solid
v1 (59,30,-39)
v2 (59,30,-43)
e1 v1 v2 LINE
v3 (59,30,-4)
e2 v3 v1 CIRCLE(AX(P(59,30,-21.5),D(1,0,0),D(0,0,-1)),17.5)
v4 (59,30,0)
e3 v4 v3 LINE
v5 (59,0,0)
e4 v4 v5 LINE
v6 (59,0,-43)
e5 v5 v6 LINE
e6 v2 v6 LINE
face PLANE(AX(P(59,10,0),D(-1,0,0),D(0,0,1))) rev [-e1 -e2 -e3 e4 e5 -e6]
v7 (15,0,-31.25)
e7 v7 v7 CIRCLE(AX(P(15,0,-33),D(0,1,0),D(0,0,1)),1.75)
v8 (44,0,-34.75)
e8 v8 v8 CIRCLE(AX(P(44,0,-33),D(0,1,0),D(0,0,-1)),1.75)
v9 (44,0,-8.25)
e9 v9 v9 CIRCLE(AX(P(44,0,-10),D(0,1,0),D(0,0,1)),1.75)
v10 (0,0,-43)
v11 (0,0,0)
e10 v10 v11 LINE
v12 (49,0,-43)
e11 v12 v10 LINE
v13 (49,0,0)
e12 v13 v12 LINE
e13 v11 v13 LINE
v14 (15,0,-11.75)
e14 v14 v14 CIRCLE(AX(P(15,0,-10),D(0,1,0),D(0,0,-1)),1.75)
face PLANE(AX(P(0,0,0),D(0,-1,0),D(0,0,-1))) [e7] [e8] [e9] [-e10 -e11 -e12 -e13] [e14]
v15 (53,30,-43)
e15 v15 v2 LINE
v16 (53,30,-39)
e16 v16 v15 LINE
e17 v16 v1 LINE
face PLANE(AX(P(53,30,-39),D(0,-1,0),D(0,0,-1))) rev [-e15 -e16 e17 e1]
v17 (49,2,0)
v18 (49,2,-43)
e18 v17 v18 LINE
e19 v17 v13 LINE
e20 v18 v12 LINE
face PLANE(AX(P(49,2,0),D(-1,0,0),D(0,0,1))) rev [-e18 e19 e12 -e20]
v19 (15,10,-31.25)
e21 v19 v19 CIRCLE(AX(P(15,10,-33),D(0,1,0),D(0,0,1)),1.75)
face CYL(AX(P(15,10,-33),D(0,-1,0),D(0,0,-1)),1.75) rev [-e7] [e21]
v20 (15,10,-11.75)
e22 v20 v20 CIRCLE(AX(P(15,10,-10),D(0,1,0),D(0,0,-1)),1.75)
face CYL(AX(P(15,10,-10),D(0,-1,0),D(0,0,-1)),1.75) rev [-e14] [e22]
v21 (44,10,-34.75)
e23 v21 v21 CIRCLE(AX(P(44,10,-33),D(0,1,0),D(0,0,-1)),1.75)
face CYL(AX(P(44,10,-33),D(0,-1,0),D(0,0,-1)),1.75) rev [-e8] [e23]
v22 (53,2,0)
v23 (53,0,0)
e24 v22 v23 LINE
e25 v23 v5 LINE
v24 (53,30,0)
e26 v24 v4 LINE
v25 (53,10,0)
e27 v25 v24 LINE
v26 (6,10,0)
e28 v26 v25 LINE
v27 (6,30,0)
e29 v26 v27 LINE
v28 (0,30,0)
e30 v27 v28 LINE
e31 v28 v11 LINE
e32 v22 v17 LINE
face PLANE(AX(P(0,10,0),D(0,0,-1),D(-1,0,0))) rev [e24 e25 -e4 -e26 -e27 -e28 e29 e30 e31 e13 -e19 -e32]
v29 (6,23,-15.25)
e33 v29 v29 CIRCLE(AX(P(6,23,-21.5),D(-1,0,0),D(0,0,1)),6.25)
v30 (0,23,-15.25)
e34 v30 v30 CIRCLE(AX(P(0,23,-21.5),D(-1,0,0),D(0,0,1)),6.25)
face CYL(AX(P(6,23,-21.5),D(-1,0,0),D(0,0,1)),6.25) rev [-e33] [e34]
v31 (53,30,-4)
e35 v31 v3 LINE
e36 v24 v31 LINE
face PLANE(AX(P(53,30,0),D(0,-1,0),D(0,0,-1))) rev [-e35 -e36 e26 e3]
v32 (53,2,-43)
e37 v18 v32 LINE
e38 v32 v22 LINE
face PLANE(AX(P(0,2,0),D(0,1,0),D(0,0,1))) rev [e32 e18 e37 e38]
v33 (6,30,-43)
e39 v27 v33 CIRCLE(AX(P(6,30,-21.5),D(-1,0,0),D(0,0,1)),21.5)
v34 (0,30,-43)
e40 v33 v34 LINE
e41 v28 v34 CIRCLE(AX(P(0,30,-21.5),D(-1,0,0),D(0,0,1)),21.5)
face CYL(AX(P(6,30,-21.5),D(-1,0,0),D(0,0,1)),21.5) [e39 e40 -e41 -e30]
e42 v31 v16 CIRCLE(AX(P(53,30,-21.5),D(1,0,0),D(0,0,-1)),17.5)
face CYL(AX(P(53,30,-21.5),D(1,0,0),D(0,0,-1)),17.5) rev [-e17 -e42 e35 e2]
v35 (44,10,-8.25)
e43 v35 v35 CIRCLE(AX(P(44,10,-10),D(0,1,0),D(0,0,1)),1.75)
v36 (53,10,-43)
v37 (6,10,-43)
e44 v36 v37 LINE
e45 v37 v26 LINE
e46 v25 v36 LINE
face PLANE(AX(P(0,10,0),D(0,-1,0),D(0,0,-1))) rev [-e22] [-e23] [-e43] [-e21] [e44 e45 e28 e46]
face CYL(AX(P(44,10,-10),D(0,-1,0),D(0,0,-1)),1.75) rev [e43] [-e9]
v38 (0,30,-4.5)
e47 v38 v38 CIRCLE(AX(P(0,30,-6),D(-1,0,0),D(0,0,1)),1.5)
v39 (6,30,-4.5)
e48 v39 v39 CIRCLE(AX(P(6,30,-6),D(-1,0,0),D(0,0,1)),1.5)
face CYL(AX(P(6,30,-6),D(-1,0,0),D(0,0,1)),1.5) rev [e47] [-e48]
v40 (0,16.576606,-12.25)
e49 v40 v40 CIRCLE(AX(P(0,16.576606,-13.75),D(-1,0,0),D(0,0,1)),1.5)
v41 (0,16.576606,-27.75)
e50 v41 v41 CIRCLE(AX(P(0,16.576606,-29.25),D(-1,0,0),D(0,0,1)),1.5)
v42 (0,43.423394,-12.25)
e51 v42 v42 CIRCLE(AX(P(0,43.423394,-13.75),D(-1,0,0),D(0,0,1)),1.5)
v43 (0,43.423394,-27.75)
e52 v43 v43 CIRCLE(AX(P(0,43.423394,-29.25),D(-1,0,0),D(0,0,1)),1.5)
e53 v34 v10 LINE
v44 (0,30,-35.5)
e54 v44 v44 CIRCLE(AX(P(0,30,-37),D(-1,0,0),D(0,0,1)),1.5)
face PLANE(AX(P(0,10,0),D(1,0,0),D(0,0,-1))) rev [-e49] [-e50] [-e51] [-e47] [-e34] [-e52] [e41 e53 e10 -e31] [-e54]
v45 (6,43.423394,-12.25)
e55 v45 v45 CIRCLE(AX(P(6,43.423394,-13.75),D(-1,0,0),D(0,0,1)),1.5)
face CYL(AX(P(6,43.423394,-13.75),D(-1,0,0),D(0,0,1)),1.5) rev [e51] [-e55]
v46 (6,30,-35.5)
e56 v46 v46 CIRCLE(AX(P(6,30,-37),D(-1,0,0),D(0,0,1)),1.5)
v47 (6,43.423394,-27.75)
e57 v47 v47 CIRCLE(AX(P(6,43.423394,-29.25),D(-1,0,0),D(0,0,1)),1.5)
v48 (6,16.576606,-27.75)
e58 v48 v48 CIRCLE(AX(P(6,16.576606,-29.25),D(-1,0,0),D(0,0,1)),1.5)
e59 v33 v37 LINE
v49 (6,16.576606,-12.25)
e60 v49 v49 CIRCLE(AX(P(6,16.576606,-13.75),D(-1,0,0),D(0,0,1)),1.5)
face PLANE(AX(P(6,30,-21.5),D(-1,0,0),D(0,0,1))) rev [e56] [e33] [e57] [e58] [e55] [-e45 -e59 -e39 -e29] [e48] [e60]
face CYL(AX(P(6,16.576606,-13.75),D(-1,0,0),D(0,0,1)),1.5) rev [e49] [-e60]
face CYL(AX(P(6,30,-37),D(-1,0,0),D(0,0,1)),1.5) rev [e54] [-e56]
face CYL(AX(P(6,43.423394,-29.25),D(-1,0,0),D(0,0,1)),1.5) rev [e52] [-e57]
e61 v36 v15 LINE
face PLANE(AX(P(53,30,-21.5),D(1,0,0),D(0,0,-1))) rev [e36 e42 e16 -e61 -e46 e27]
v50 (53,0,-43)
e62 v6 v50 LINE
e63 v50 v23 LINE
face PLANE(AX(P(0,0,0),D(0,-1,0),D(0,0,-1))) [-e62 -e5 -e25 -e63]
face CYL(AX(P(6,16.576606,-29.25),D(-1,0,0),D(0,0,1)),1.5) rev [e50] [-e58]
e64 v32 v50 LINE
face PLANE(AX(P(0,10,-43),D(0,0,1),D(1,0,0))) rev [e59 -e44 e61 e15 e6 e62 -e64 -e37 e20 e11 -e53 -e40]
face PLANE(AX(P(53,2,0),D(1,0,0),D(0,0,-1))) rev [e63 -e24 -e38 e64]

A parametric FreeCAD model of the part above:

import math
import FreeCAD as App
import Part
import Sketcher
Q = App.Units.Quantity

doc = App.newDocument("Part")
body = doc.addObject("PartDesign::Body", "Body")

# Sketch on XZ plane
sketch1 = body.newObject("Sketcher::SketchObject", "Sketch")
sketch1.AttachmentSupport = (doc.getObject("XZ_Plane"), [""])
sketch1.MapMode = "FlatFace"
sketch1.addGeometry([
    Part.LineSegment(App.Vector(0, -43, 0), App.Vector(0, 0, 0)),  # 0
    Part.LineSegment(App.Vector(0, 0, 0), App.Vector(59, 0, 0)),  # 1
    Part.LineSegment(App.Vector(59, 0, 0), App.Vector(59, -43, 0)),  # 2
    Part.LineSegment(App.Vector(59, -43, 0), App.Vector(0, -43, 0)),  # 3
    Part.Circle(App.Vector(15, -10, 0), App.Vector(0, 0, 1), 1.8),  # 4
    Part.Circle(App.Vector(44, -10, 0), App.Vector(0, 0, 1), 1.8),  # 5
    Part.Circle(App.Vector(15, -33, 0), App.Vector(0, 0, 1), 1.8),  # 6
    Part.Circle(App.Vector(44, -33, 0), App.Vector(0, 0, 1), 1.8),  # 7
], False)
sketch1.addConstraint([
    Sketcher.Constraint("Coincident", 0, 2, 1, 1),
    Sketcher.Constraint("Coincident", 1, 2, 2, 1),
    Sketcher.Constraint("Coincident", 2, 2, 3, 1),
    Sketcher.Constraint("Coincident", 3, 2, 0, 1),
    Sketcher.Constraint("Vertical", 0),
    Sketcher.Constraint("Horizontal", 1),
    Sketcher.Constraint("Vertical", 2),
    Sketcher.Constraint("Horizontal", 3),
    Sketcher.Constraint("Coincident", 0, 2, -1, 1),
    Sketcher.Constraint("Equal", 4, 5),
    Sketcher.Constraint("Equal", 5, 6),
    Sketcher.Constraint("Equal", 6, 7),
    Sketcher.Constraint("Horizontal", 4, 3, 5, 3),
    Sketcher.Constraint("Horizontal", 6, 3, 7, 3),
    Sketcher.Constraint("Vertical", 4, 3, 6, 3),
    Sketcher.Constraint("Vertical", 5, 3, 7, 3),
    Sketcher.Constraint("Diameter", 4, Q("3.5 mm")),
    Sketcher.Constraint("DistanceX", 1, 1, 1, 2, Q("59 mm")),
    Sketcher.Constraint("DistanceY", 0, 1, 0, 2, Q("43 mm")),
    Sketcher.Constraint("DistanceX", -1, 1, 4, 3, Q("15 mm")),
    Sketcher.Constraint("DistanceY", 4, 3, -1, 1, Q("10 mm")),
    Sketcher.Constraint("DistanceX", -1, 1, 5, 3, Q("44 mm")),
    Sketcher.Constraint("DistanceY", 6, 3, -1, 1, Q("33 mm")),
])
pad1 = body.newObject("PartDesign::Pad", "Pad")
pad1.Profile = sketch1
pad1.Length = 10
pad1.Reversed = True

# Sketch on XZ plane
sketch2 = body.newObject("Sketcher::SketchObject", "Sketch001")
sketch2.AttachmentSupport = (doc.getObject("XZ_Plane"), [""])
sketch2.MapMode = "FlatFace"
sketch2.addGeometry([
    Part.LineSegment(App.Vector(49, 0, 0), App.Vector(49, -43, 0)),
    Part.LineSegment(App.Vector(49, -43, 0), App.Vector(53, -43, 0)),
    Part.LineSegment(App.Vector(53, -43, 0), App.Vector(53, 0, 0)),
    Part.LineSegment(App.Vector(53, 0, 0), App.Vector(49, 0, 0)),
], False)
sketch2.addConstraint([
    Sketcher.Constraint("Coincident", 0, 2, 1, 1),
    Sketcher.Constraint("Coincident", 1, 2, 2, 1),
    Sketcher.Constraint("Coincident", 2, 2, 3, 1),
    Sketcher.Constraint("Coincident", 3, 2, 0, 1),
    Sketcher.Constraint("Vertical", 0),
    Sketcher.Constraint("Horizontal", 1),
    Sketcher.Constraint("Vertical", 2),
    Sketcher.Constraint("Horizontal", 3),
    Sketcher.Constraint("PointOnObject", 2, 2, -1),
    Sketcher.Constraint("DistanceX", 1, 1, 1, 2, Q("4 mm")),
    Sketcher.Constraint("DistanceY", 0, 2, 0, 1, Q("43 mm")),
    Sketcher.Constraint("DistanceX", -1, 1, 0, 2, Q("49 mm")),
])
pocket1 = body.newObject("PartDesign::Pocket", "Pocket")
pocket1.Profile = sketch2
pocket1.Length = 2

# Sketch on YZ plane
sketch3 = body.newObject("Sketcher::SketchObject", "Sketch002")
sketch3.AttachmentSupport = (doc.getObject("YZ_Plane"), [""])
sketch3.MapMode = "FlatFace"
sketch3.AttachmentOffset = App.Placement(App.Vector(0, 0, 59), App.Rotation())
sketch3.addGeometry([
    Part.LineSegment(App.Vector(10, 0, 0), App.Vector(10, -43, 0)),  # 0
    Part.LineSegment(App.Vector(10, -43, 0), App.Vector(30, -43, 0)),  # 1
    Part.LineSegment(App.Vector(30, -43, 0), App.Vector(30, -39, 0)),  # 2
    Part.ArcOfCircle(Part.Circle(App.Vector(30, -21.5, 0), App.Vector(0, 0, 1), 17.5), math.radians(90), math.radians(270)),  # 3
    Part.LineSegment(App.Vector(30, -4, 0), App.Vector(30, 0, 0)),  # 4
    Part.LineSegment(App.Vector(30, 0, 0), App.Vector(10, 0, 0)),  # 5
], False)
sketch3.addConstraint([
    Sketcher.Constraint("Coincident", 0, 2, 1, 1),
    Sketcher.Constraint("Coincident", 1, 2, 2, 1),
    Sketcher.Constraint("Coincident", 2, 2, 3, 2),
    Sketcher.Constraint("Coincident", 3, 1, 4, 1),
    Sketcher.Constraint("Coincident", 4, 2, 5, 1),
    Sketcher.Constraint("Coincident", 5, 2, 0, 1),
    Sketcher.Constraint("Vertical", 0),
    Sketcher.Constraint("Horizontal", 1),
    Sketcher.Constraint("Vertical", 2),
    Sketcher.Constraint("Vertical", 4),
    Sketcher.Constraint("Horizontal", 5),
    Sketcher.Constraint("PointOnObject", 4, 2, -1),
    Sketcher.Constraint("Vertical", 3, 3, 1, 2),
    Sketcher.Constraint("Vertical", 2, 2, 3, 1),
    Sketcher.Constraint("Equal", 2, 4),
    Sketcher.Constraint("Radius", 3, Q("17.5 mm")),
    Sketcher.Constraint("DistanceX", 1, 1, 1, 2, Q("20 mm")),
    Sketcher.Constraint("DistanceY", 0, 2, 0, 1, Q("43 mm")),
    Sketcher.Constraint("DistanceX", -1, 1, 3, 3, Q("30 mm")),
])
pad2 = body.newObject("PartDesign::Pad", "Pad001")
pad2.Profile = sketch3
pad2.Length = 6
pad2.Reversed = True

# Sketch on YZ plane
sketch4 = body.newObject("Sketcher::SketchObject", "Sketch003")
sketch4.AttachmentSupport = (doc.getObject("YZ_Plane"), [""])
sketch4.MapMode = "FlatFace"
sketch4.addGeometry([
    Part.LineSegment(App.Vector(10, -43, 0), App.Vector(10, 0, 0)),  # 0
    Part.LineSegment(App.Vector(10, 0, 0), App.Vector(30, 0, 0)),  # 1
    Part.ArcOfCircle(Part.Circle(App.Vector(30, -21.5, 0), App.Vector(0, 0, 1), 21.5), math.radians(-90), math.radians(90)),  # 2
    Part.LineSegment(App.Vector(30, -43, 0), App.Vector(10, -43, 0)),  # 3
    Part.Circle(App.Vector(16.6, -29.2, 0), App.Vector(0, 0, 1), 1.5),  # 4
    Part.Circle(App.Vector(16.6, -13.8, 0), App.Vector(0, 0, 1), 1.5),  # 5
    Part.Circle(App.Vector(23, -21.5, 0), App.Vector(0, 0, 1), 6.2),  # 6
    Part.Circle(App.Vector(30, -37, 0), App.Vector(0, 0, 1), 1.5),  # 7
    Part.Circle(App.Vector(43.4, -29.2, 0), App.Vector(0, 0, 1), 1.5),  # 8
    Part.Circle(App.Vector(30, -6, 0), App.Vector(0, 0, 1), 1.5),  # 9
    Part.Circle(App.Vector(43.4, -13.8, 0), App.Vector(0, 0, 1), 1.5),  # 10
], False)
sketch4.addConstraint([
    Sketcher.Constraint("Coincident", 0, 2, 1, 1),
    Sketcher.Constraint("Tangent", 1, 2, 2, 2),
    Sketcher.Constraint("Tangent", 2, 1, 3, 1),
    Sketcher.Constraint("Coincident", 3, 2, 0, 1),
    Sketcher.Constraint("Vertical", 0),
    Sketcher.Constraint("Horizontal", 1),
    Sketcher.Constraint("Horizontal", 3),
    Sketcher.Constraint("Equal", 4, 5),
    Sketcher.Constraint("Equal", 5, 7),
    Sketcher.Constraint("Equal", 7, 8),
    Sketcher.Constraint("Equal", 8, 9),
    Sketcher.Constraint("Equal", 9, 10),
    Sketcher.Constraint("PointOnObject", 0, 2, -1),
    Sketcher.Constraint("Horizontal", 2, 3, 6, 3),
    Sketcher.Constraint("Horizontal", 4, 3, 8, 3),
    Sketcher.Constraint("Horizontal", 5, 3, 10, 3),
    Sketcher.Constraint("Vertical", 4, 3, 5, 3),
    Sketcher.Constraint("Vertical", 2, 3, 7, 3),
    Sketcher.Constraint("Vertical", 7, 3, 9, 3),
    Sketcher.Constraint("Vertical", 8, 3, 10, 3),
    Sketcher.Constraint("Diameter", 4, Q("3 mm")),
    Sketcher.Constraint("Diameter", 6, Q("12.5 mm")),
    Sketcher.Constraint("Radius", 2, Q("21.5 mm")),
    Sketcher.Constraint("DistanceX", 1, 1, 1, 2, Q("20 mm")),
    Sketcher.Constraint("DistanceX", -1, 1, 2, 3, Q("30 mm")),
    Sketcher.Constraint("DistanceX", -1, 1, 6, 3, Q("23 mm")),
    Sketcher.Constraint("DistanceY", 7, 3, -1, 1, Q("37 mm")),
    Sketcher.Constraint("DistanceY", 9, 3, -1, 1, Q("6 mm")),
    Sketcher.Constraint("DistanceY", 4, 3, 5, 3, Q("15.5 mm")),
    Sketcher.Constraint("DistanceY", 4, 3, -1, 1, Q("29.25 mm")),
    Sketcher.Constraint("DistanceX", -1, 1, 4, 3, Q("16.576606 mm")),
    Sketcher.Constraint("DistanceX", -1, 1, 8, 3, Q("43.423394 mm")),
])
pad3 = body.newObject("PartDesign::Pad", "Pad002")
pad3.Profile = sketch4
pad3.Length = 6

doc.recompute()
